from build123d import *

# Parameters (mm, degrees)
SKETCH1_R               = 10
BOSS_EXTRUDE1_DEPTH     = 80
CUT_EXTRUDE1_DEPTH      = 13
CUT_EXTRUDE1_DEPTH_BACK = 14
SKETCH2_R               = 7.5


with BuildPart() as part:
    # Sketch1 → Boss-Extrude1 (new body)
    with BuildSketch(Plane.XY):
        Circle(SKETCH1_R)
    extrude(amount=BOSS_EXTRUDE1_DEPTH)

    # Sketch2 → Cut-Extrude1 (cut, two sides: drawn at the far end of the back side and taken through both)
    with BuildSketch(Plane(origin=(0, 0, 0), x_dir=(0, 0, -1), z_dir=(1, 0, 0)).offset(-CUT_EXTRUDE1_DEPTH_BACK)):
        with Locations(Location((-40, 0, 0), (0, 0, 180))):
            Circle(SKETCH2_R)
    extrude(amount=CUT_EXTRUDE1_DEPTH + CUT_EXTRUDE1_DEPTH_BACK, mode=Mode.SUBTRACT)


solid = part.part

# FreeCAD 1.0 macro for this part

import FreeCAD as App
import Part
import Sketcher
from FreeCAD import Vector
Q = App.Units.Quantity

doc = App.newDocument("Part")
params = doc.addObject("Spreadsheet::Sheet", "Params")
for row, (alias, value) in enumerate([
    ("sketch1_diameter", "20 mm"),
    ("pad1_length", "80 mm"),
    ("sketch2_diameter", "15 mm"),
], start=1):
    params.set(f"A{row}", alias)
    params.set(f"B{row}", "=" + value)
    params.setAlias(f"B{row}", alias)

body = doc.addObject("PartDesign::Body", "Body")

sketch1 = body.newObject("Sketcher::SketchObject", "Sketch")
sketch1.AttachmentSupport = (doc.getObject("XY_Plane"), [""])
sketch1.MapMode = "FlatFace"
sketch1.addGeometry(Part.Circle(Vector(0, 0, 0), Vector(0, 0, 1), 10), False)
sketch1.addConstraint(Sketcher.Constraint("Coincident", 0, 3, -1, 1))
sketch1.addConstraint(Sketcher.Constraint("Diameter", 0, Q("20 mm")))
sketch1.setExpression("Constraints[1]", "Params.sketch1_diameter")
pad1 = body.newObject("PartDesign::Pad", "Pad")
pad1.Profile = sketch1
pad1.setExpression("Length", "Params.pad1_length")

sketch2 = body.newObject("Sketcher::SketchObject", "Sketch001")
sketch2.AttachmentSupport = (doc.getObject("YZ_Plane"), [""])
sketch2.MapMode = "FlatFace"
sketch2.addGeometry(Part.Circle(Vector(0, 40, 0), Vector(0, 0, 1), 7.5), False)
sketch2.addConstraint(Sketcher.Constraint("PointOnObject", 0, 3, -2))
sketch2.addConstraint(Sketcher.Constraint("Diameter", 0, Q("15 mm")))
sketch2.addConstraint(Sketcher.Constraint("DistanceY", -1, 1, 0, 3, Q("40 mm")))
sketch2.setExpression("Constraints[1]", "Params.sketch2_diameter")
pocket1 = body.newObject("PartDesign::Pocket", "Pocket")
pocket1.Profile = sketch2
pocket1.Type = "ThroughAll"
pocket1.Midplane = True

doc.recompute()
